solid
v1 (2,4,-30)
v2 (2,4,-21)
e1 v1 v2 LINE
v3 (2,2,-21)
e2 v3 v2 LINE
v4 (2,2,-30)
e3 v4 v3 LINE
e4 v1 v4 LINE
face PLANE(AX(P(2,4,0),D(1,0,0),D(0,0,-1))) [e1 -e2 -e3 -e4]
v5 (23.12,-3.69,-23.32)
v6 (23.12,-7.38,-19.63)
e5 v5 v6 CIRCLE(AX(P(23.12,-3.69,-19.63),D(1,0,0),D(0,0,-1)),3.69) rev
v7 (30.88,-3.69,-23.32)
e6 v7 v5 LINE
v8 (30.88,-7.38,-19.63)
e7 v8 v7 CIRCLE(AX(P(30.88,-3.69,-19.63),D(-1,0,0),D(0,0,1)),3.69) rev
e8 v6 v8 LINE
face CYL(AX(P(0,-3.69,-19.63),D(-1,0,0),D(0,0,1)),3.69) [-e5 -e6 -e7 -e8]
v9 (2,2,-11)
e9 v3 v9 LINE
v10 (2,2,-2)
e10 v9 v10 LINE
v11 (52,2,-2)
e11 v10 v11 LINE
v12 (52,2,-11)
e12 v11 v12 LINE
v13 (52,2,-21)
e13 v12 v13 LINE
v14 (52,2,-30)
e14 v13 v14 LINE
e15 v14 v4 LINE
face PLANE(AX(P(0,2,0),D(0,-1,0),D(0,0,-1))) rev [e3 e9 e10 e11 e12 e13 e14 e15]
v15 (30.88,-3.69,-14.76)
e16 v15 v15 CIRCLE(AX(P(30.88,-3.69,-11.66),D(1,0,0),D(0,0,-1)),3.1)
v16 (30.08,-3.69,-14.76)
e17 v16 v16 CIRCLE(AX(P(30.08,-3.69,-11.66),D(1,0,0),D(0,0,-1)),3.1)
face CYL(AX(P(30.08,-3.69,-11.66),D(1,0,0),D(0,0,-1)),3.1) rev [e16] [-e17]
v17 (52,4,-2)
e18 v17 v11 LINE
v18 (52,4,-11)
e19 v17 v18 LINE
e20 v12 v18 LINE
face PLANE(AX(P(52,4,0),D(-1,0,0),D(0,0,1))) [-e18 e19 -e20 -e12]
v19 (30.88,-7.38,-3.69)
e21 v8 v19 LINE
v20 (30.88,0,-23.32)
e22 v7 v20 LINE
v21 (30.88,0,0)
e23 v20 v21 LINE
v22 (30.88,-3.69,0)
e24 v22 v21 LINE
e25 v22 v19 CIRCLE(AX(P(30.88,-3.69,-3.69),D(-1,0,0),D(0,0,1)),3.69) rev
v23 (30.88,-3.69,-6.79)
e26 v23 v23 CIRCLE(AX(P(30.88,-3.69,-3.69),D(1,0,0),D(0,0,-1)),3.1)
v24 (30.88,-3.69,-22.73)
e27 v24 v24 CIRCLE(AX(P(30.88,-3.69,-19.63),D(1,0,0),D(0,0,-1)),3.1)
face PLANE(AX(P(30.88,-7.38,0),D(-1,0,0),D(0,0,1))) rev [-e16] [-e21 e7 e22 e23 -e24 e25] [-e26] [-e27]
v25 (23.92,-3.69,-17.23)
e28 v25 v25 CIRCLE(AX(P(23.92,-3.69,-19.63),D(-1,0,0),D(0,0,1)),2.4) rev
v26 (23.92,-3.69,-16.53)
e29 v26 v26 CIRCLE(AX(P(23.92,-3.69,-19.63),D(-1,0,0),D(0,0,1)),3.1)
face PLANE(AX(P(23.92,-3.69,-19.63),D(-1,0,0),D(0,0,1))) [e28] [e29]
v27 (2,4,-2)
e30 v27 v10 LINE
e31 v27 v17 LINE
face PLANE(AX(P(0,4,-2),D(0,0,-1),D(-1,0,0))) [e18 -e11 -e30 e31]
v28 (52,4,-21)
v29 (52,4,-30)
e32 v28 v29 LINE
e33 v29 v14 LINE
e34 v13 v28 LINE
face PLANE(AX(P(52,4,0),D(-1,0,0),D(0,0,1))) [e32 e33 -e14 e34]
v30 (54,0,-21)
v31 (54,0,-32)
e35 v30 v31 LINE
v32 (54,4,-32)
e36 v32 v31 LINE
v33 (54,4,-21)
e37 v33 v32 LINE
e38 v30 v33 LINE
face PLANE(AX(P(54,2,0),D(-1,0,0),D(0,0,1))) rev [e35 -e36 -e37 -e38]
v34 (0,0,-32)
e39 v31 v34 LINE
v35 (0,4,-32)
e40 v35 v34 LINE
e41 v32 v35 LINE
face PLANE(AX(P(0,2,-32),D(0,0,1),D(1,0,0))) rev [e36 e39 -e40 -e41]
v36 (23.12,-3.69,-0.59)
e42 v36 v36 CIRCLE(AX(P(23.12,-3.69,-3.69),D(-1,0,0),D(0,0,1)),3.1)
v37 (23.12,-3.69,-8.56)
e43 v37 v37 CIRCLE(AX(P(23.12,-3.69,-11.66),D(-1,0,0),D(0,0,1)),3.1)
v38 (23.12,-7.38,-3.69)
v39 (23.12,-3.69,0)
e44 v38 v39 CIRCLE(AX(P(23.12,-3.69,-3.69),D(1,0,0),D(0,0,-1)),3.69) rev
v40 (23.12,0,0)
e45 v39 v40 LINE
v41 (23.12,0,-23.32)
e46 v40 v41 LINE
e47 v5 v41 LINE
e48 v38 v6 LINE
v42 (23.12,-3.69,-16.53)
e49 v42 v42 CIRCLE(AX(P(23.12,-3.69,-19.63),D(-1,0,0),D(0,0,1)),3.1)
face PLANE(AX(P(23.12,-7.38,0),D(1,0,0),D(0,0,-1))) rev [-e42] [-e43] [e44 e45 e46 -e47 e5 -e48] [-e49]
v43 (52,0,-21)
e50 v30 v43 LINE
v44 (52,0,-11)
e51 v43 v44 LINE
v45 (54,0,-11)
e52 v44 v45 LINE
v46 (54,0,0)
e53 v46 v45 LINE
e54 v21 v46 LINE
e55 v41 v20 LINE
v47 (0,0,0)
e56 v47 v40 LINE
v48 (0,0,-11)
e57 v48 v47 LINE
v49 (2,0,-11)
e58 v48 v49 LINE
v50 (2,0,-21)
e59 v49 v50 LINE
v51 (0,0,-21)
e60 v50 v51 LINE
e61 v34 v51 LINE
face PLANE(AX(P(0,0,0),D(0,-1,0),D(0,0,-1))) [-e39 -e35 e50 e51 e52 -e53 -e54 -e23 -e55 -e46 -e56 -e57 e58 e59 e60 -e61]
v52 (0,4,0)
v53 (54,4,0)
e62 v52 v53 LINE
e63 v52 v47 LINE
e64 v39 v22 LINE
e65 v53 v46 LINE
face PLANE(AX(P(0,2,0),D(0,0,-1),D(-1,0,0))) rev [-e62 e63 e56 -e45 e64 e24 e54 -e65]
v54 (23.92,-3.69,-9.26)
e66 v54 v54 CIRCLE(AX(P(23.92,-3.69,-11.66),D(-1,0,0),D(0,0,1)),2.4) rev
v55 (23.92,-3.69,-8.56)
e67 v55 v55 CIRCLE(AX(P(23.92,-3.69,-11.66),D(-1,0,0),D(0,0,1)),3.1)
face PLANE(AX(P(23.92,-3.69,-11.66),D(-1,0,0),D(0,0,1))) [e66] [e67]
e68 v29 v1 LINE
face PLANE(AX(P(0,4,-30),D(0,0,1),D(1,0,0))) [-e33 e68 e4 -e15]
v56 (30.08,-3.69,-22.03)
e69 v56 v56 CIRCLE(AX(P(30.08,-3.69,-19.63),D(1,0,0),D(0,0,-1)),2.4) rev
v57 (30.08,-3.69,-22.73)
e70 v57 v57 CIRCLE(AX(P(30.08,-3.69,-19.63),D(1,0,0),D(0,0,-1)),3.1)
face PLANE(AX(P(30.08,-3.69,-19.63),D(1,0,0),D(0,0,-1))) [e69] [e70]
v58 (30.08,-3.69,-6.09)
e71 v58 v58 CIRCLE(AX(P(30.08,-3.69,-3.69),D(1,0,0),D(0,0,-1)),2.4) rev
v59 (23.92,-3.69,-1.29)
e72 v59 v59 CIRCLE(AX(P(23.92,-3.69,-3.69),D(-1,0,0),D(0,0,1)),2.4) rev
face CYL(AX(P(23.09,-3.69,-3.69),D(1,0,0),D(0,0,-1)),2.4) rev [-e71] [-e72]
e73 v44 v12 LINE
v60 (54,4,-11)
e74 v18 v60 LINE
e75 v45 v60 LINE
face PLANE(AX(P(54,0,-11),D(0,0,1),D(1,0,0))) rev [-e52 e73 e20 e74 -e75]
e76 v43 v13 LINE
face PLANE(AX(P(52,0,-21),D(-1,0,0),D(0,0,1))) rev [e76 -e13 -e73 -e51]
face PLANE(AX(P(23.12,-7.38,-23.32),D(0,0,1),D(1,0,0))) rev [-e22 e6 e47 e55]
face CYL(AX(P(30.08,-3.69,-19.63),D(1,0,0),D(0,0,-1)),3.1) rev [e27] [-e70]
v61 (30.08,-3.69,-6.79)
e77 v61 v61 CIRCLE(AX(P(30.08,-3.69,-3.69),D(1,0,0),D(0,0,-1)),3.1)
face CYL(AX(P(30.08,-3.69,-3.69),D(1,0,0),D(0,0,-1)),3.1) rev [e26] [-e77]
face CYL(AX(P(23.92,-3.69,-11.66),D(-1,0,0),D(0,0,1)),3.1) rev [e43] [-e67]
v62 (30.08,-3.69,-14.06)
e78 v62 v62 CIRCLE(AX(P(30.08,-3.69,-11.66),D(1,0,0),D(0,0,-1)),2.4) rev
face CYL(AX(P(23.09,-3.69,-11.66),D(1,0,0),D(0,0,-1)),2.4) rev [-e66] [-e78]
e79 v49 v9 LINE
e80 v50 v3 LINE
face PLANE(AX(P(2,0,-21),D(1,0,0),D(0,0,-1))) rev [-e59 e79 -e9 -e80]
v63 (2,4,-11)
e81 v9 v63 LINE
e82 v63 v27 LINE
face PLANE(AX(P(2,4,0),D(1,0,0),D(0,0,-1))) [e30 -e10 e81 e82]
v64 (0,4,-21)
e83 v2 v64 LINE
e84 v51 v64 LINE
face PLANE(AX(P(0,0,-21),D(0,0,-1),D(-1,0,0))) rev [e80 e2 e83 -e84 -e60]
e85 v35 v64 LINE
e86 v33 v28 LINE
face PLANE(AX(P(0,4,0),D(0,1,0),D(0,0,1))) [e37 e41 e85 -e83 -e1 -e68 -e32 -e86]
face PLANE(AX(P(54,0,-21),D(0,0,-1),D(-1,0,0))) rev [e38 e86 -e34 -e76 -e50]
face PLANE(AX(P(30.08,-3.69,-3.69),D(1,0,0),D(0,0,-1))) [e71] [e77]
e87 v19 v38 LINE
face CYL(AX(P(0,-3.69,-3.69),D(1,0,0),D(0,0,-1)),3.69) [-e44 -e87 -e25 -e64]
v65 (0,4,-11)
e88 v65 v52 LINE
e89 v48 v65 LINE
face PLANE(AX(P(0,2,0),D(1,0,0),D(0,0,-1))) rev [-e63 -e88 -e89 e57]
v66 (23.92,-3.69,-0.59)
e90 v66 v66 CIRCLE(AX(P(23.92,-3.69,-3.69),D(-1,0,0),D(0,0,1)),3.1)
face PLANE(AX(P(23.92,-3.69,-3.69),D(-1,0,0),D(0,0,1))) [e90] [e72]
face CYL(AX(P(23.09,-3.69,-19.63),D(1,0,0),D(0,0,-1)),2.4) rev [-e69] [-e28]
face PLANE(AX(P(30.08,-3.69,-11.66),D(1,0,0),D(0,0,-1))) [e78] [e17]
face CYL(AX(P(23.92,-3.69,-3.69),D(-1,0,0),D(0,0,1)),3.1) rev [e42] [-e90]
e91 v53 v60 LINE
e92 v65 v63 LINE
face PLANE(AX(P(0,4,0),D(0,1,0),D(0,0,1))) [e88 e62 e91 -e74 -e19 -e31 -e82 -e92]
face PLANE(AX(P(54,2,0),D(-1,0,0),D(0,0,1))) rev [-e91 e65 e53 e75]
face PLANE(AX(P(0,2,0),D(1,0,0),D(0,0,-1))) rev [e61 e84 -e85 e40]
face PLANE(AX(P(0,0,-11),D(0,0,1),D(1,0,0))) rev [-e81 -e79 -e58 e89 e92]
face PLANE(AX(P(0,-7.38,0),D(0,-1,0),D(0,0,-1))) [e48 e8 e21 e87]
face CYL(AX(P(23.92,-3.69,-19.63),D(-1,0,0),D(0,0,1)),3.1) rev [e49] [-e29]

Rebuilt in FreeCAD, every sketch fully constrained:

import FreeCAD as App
import Part
import Sketcher

V = App.Vector
Q = App.Units.Quantity


def edges_at(feature, points):
    """Names of the edges that pass closest to the given points."""
    edges = feature.Shape.Edges
    near = lambda p: min(range(len(edges)), key=lambda i: edges[i].distToShape(Part.Vertex(*p))[0])
    return sorted({f"Edge{near(p) + 1}" for p in points})

doc = App.newDocument("Part")
body = doc.addObject("PartDesign::Body", "Body")

# Sketch on XZ plane
sketch1 = body.newObject("Sketcher::SketchObject", "Sketch")
sketch1.AttachmentSupport = (doc.getObject("XZ_Plane"), [""])
sketch1.MapMode = "FlatFace"
sketch1.addGeometry(Part.LineSegment(V(0, -32, 0), V(0, 0, 0)), False)
sketch1.addGeometry(Part.LineSegment(V(0, 0, 0), V(54, 0, 0)), False)
sketch1.addGeometry(Part.LineSegment(V(54, 0, 0), V(54, -32, 0)), False)
sketch1.addGeometry(Part.LineSegment(V(54, -32, 0), V(0, -32, 0)), False)
sketch1.addConstraint(Sketcher.Constraint("Coincident", 0, 2, 1, 1))
sketch1.addConstraint(Sketcher.Constraint("Coincident", 1, 2, 2, 1))
sketch1.addConstraint(Sketcher.Constraint("Coincident", 2, 2, 3, 1))
sketch1.addConstraint(Sketcher.Constraint("Coincident", 3, 2, 0, 1))
sketch1.addConstraint(Sketcher.Constraint("Vertical", 0))
sketch1.addConstraint(Sketcher.Constraint("Horizontal", 1))
sketch1.addConstraint(Sketcher.Constraint("Vertical", 2))
sketch1.addConstraint(Sketcher.Constraint("Horizontal", 3))
sketch1.addConstraint(Sketcher.Constraint("Coincident", 0, 2, -1, 1))
sketch1.addConstraint(Sketcher.Constraint("DistanceX", 1, 1, 1, 2, Q("54 mm")))
sketch1.addConstraint(Sketcher.Constraint("DistanceY", 0, 1, 0, 2, Q("32 mm")))
pad1 = body.newObject("PartDesign::Pad", "Pad")
pad1.Profile = sketch1
pad1.Length = 2
pad1.Reversed = True

# Sketch on XZ plane
sketch2 = body.newObject("Sketcher::SketchObject", "Sketch001")
sketch2.AttachmentSupport = (doc.getObject("XZ_Plane"), [""])
sketch2.MapMode = "FlatFace"
sketch2.AttachmentOffset = App.Placement(V(0, 0, -2), App.Rotation())
sketch2.addGeometry(Part.LineSegment(V(0, -32, 0), V(0, 0, 0)), False)
sketch2.addGeometry(Part.LineSegment(V(0, 0, 0), V(54, 0, 0)), False)
sketch2.addGeometry(Part.LineSegment(V(54, 0, 0), V(54, -32, 0)), False)
sketch2.addGeometry(Part.LineSegment(V(54, -32, 0), V(0, -32, 0)), False)
sketch2.addGeometry(Part.LineSegment(V(52, -2, 0), V(2, -2, 0)), False)
sketch2.addGeometry(Part.LineSegment(V(2, -2, 0), V(2, -30, 0)), False)
sketch2.addGeometry(Part.LineSegment(V(2, -30, 0), V(52, -30, 0)), False)
sketch2.addGeometry(Part.LineSegment(V(52, -30, 0), V(52, -2, 0)), False)
sketch2.addConstraint(Sketcher.Constraint("Coincident", 0, 2, 1, 1))
sketch2.addConstraint(Sketcher.Constraint("Coincident", 1, 2, 2, 1))
sketch2.addConstraint(Sketcher.Constraint("Coincident", 2, 2, 3, 1))
sketch2.addConstraint(Sketcher.Constraint("Coincident", 3, 2, 0, 1))
sketch2.addConstraint(Sketcher.Constraint("Coincident", 4, 2, 5, 1))
sketch2.addConstraint(Sketcher.Constraint("Coincident", 5, 2, 6, 1))
sketch2.addConstraint(Sketcher.Constraint("Coincident", 6, 2, 7, 1))
sketch2.addConstraint(Sketcher.Constraint("Coincident", 7, 2, 4, 1))
sketch2.addConstraint(Sketcher.Constraint("Vertical", 0))
sketch2.addConstraint(Sketcher.Constraint("Horizontal", 1))
sketch2.addConstraint(Sketcher.Constraint("Vertical", 2))
sketch2.addConstraint(Sketcher.Constraint("Horizontal", 3))
sketch2.addConstraint(Sketcher.Constraint("Horizontal", 4))
sketch2.addConstraint(Sketcher.Constraint("Vertical", 5))
sketch2.addConstraint(Sketcher.Constraint("Horizontal", 6))
sketch2.addConstraint(Sketcher.Constraint("Vertical", 7))
sketch2.addConstraint(Sketcher.Constraint("Coincident", 0, 2, -1, 1))
sketch2.addConstraint(Sketcher.Constraint("DistanceX", 1, 1, 1, 2, Q("54 mm")))
sketch2.addConstraint(Sketcher.Constraint("DistanceX", 4, 2, 4, 1, Q("50 mm")))
sketch2.addConstraint(Sketcher.Constraint("DistanceY", 0, 1, 0, 2, Q("32 mm")))
sketch2.addConstraint(Sketcher.Constraint("DistanceY", 5, 2, 5, 1, Q("28 mm")))
sketch2.addConstraint(Sketcher.Constraint("DistanceX", -1, 1, 4, 2, Q("2 mm")))
sketch2.addConstraint(Sketcher.Constraint("DistanceY", 4, 2, -1, 1, Q("2 mm")))
pad2 = body.newObject("PartDesign::Pad", "Pad001")
pad2.Profile = sketch2
pad2.Length = 2
pad2.Reversed = True

# Sketch on XZ plane
sketch3 = body.newObject("Sketcher::SketchObject", "Sketch002")
sketch3.AttachmentSupport = (doc.getObject("XZ_Plane"), [""])
sketch3.MapMode = "FlatFace"
sketch3.AttachmentOffset = App.Placement(V(0, 0, -4), App.Rotation())
sketch3.addGeometry(Part.LineSegment(V(0, -21, 0), V(0, -11, 0)), False)
sketch3.addGeometry(Part.LineSegment(V(0, -11, 0), V(2, -11, 0)), False)
sketch3.addGeometry(Part.LineSegment(V(2, -11, 0), V(2, -21, 0)), False)
sketch3.addGeometry(Part.LineSegment(V(2, -21, 0), V(0, -21, 0)), False)
sketch3.addGeometry(Part.LineSegment(V(52, -21, 0), V(52, -11, 0)), False)
sketch3.addGeometry(Part.LineSegment(V(52, -11, 0), V(54, -11, 0)), False)
sketch3.addGeometry(Part.LineSegment(V(54, -11, 0), V(54, -21, 0)), False)
sketch3.addGeometry(Part.LineSegment(V(54, -21, 0), V(52, -21, 0)), False)
sketch3.addConstraint(Sketcher.Constraint("Coincident", 0, 2, 1, 1))
sketch3.addConstraint(Sketcher.Constraint("Coincident", 1, 2, 2, 1))
sketch3.addConstraint(Sketcher.Constraint("Coincident", 2, 2, 3, 1))
sketch3.addConstraint(Sketcher.Constraint("Coincident", 3, 2, 0, 1))
sketch3.addConstraint(Sketcher.Constraint("Coincident", 4, 2, 5, 1))
sketch3.addConstraint(Sketcher.Constraint("Coincident", 5, 2, 6, 1))
sketch3.addConstraint(Sketcher.Constraint("Coincident", 6, 2, 7, 1))
sketch3.addConstraint(Sketcher.Constraint("Coincident", 7, 2, 4, 1))
sketch3.addConstraint(Sketcher.Constraint("Vertical", 0))
sketch3.addConstraint(Sketcher.Constraint("Horizontal", 1))
sketch3.addConstraint(Sketcher.Constraint("Vertical", 2))
sketch3.addConstraint(Sketcher.Constraint("Horizontal", 3))
sketch3.addConstraint(Sketcher.Constraint("Vertical", 4))
sketch3.addConstraint(Sketcher.Constraint("Horizontal", 5))
sketch3.addConstraint(Sketcher.Constraint("Vertical", 6))
sketch3.addConstraint(Sketcher.Constraint("Horizontal", 7))
sketch3.addConstraint(Sketcher.Constraint("PointOnObject", 0, 2, -2))
sketch3.addConstraint(Sketcher.Constraint("Horizontal", 1, 2, 4, 2))
sketch3.addConstraint(Sketcher.Constraint("Horizontal", 3, 2, 6, 2))
sketch3.addConstraint(Sketcher.Constraint("Equal", 3, 5))
sketch3.addConstraint(Sketcher.Constraint("DistanceX", 1, 1, 1, 2, Q("2 mm")))
sketch3.addConstraint(Sketcher.Constraint("DistanceY", 0, 1, 0, 2, Q("10 mm")))
sketch3.addConstraint(Sketcher.Constraint("DistanceY", 0, 2, -1, 1, Q("11 mm")))
sketch3.addConstraint(Sketcher.Constraint("DistanceX", -1, 1, 4, 2, Q("52 mm")))
pocket1 = body.newObject("PartDesign::Pocket", "Pocket")
pocket1.Profile = sketch3
pocket1.Length = 4
pocket1.Reversed = True

# Sketch on XZ plane
sketch4 = body.newObject("Sketcher::SketchObject", "Sketch003")
sketch4.AttachmentSupport = (doc.getObject("XZ_Plane"), [""])
sketch4.MapMode = "FlatFace"
sketch4.addGeometry(Part.LineSegment(V(23.12, 0, 0), V(23.12, -23.32, 0)), False)
sketch4.addGeometry(Part.LineSegment(V(23.12, -23.32, 0), V(30.88, -23.32, 0)), False)
sketch4.addGeometry(Part.LineSegment(V(30.88, -23.32, 0), V(30.88, 0, 0)), False)
sketch4.addGeometry(Part.LineSegment(V(30.88, 0, 0), V(23.12, 0, 0)), False)
sketch4.addConstraint(Sketcher.Constraint("Coincident", 0, 2, 1, 1))
sketch4.addConstraint(Sketcher.Constraint("Coincident", 1, 2, 2, 1))
sketch4.addConstraint(Sketcher.Constraint("Coincident", 2, 2, 3, 1))
sketch4.addConstraint(Sketcher.Constraint("Coincident", 3, 2, 0, 1))
sketch4.addConstraint(Sketcher.Constraint("Vertical", 0))
sketch4.addConstraint(Sketcher.Constraint("Horizontal", 1))
sketch4.addConstraint(Sketcher.Constraint("Vertical", 2))
sketch4.addConstraint(Sketcher.Constraint("Horizontal", 3))
sketch4.addConstraint(Sketcher.Constraint("PointOnObject", 2, 2, -1))
sketch4.addConstraint(Sketcher.Constraint("DistanceX", 1, 1, 1, 2, Q("7.76 mm")))
sketch4.addConstraint(Sketcher.Constraint("DistanceY", 0, 2, 0, 1, Q("23.32 mm")))
sketch4.addConstraint(Sketcher.Constraint("DistanceX", -1, 1, 0, 2, Q("23.12 mm")))
pad3 = body.newObject("PartDesign::Pad", "Pad002")
pad3.Profile = sketch4
pad3.Length = 7.38

# Sketch on YZ plane
sketch5 = body.newObject("Sketcher::SketchObject", "Sketch004")
sketch5.AttachmentSupport = (doc.getObject("YZ_Plane"), [""])
sketch5.MapMode = "FlatFace"
sketch5.AttachmentOffset = App.Placement(V(0, 0, 30.88), App.Rotation())
sketch5.addGeometry(Part.Circle(V(-3.69, -3.69, 0), V(0, 0, 1), 2.4), False)
sketch5.addGeometry(Part.Circle(V(-3.69, -11.66, 0), V(0, 0, 1), 2.4), False)
sketch5.addGeometry(Part.Circle(V(-3.69, -19.63, 0), V(0, 0, 1), 2.4), False)
sketch5.addConstraint(Sketcher.Constraint("Equal", 0, 1))
sketch5.addConstraint(Sketcher.Constraint("Equal", 1, 2))
sketch5.addConstraint(Sketcher.Constraint("Vertical", 0, 3, 1, 3))
sketch5.addConstraint(Sketcher.Constraint("Vertical", 1, 3, 2, 3))
sketch5.addConstraint(Sketcher.Constraint("Diameter", 0, Q("4.8 mm")))
sketch5.addConstraint(Sketcher.Constraint("DistanceX", 0, 3, -1, 1, Q("3.69 mm")))
sketch5.addConstraint(Sketcher.Constraint("DistanceY", 0, 3, -1, 1, Q("3.69 mm")))
sketch5.addConstraint(Sketcher.Constraint("DistanceY", 1, 3, -1, 1, Q("11.66 mm")))
sketch5.addConstraint(Sketcher.Constraint("DistanceY", 2, 3, -1, 1, Q("19.63 mm")))
pocket2 = body.newObject("PartDesign::Pocket", "Pocket001")
pocket2.Profile = sketch5
pocket2.Length = 7.79

# Sketch on YZ plane
sketch6 = body.newObject("Sketcher::SketchObject", "Sketch005")
sketch6.AttachmentSupport = (doc.getObject("YZ_Plane"), [""])
sketch6.MapMode = "FlatFace"
sketch6.AttachmentOffset = App.Placement(V(0, 0, 23.12), App.Rotation())
sketch6.addGeometry(Part.Circle(V(-3.69, -11.66, 0), V(0, 0, 1), 3.1), False)
sketch6.addGeometry(Part.Circle(V(-3.69, -3.69, 0), V(0, 0, 1), 3.1), False)
sketch6.addGeometry(Part.Circle(V(-3.69, -19.63, 0), V(0, 0, 1), 3.1), False)
sketch6.addConstraint(Sketcher.Constraint("Equal", 0, 1))
sketch6.addConstraint(Sketcher.Constraint("Equal", 1, 2))
sketch6.addConstraint(Sketcher.Constraint("Vertical", 0, 3, 1, 3))
sketch6.addConstraint(Sketcher.Constraint("Vertical", 1, 3, 2, 3))
sketch6.addConstraint(Sketcher.Constraint("Diameter", 0, Q("6.2 mm")))
sketch6.addConstraint(Sketcher.Constraint("DistanceX", 0, 3, -1, 1, Q("3.69 mm")))
sketch6.addConstraint(Sketcher.Constraint("DistanceY", 0, 3, -1, 1, Q("11.66 mm")))
sketch6.addConstraint(Sketcher.Constraint("DistanceY", 1, 3, -1, 1, Q("3.69 mm")))
sketch6.addConstraint(Sketcher.Constraint("DistanceY", 2, 3, -1, 1, Q("19.63 mm")))
pocket3 = body.newObject("PartDesign::Pocket", "Pocket002")
pocket3.Profile = sketch6
pocket3.Length = 0.8
pocket3.Reversed = True

# Sketch on YZ plane
sketch7 = body.newObject("Sketcher::SketchObject", "Sketch006")
sketch7.AttachmentSupport = (doc.getObject("YZ_Plane"), [""])
sketch7.MapMode = "FlatFace"
sketch7.AttachmentOffset = App.Placement(V(0, 0, 30.08), App.Rotation())
sketch7.addGeometry(Part.Circle(V(-3.69, -3.69, 0), V(0, 0, 1), 3.1), False)
sketch7.addGeometry(Part.Circle(V(-3.69, -11.66, 0), V(0, 0, 1), 3.1), False)
sketch7.addGeometry(Part.Circle(V(-3.69, -19.63, 0), V(0, 0, 1), 3.1), False)
sketch7.addConstraint(Sketcher.Constraint("Equal", 0, 1))
sketch7.addConstraint(Sketcher.Constraint("Equal", 1, 2))
sketch7.addConstraint(Sketcher.Constraint("Vertical", 0, 3, 1, 3))
sketch7.addConstraint(Sketcher.Constraint("Vertical", 1, 3, 2, 3))
sketch7.addConstraint(Sketcher.Constraint("Diameter", 0, Q("6.2 mm")))
sketch7.addConstraint(Sketcher.Constraint("DistanceX", 0, 3, -1, 1, Q("3.69 mm")))
sketch7.addConstraint(Sketcher.Constraint("DistanceY", 0, 3, -1, 1, Q("3.69 mm")))
sketch7.addConstraint(Sketcher.Constraint("DistanceY", 1, 3, -1, 1, Q("11.66 mm")))
sketch7.addConstraint(Sketcher.Constraint("DistanceY", 2, 3, -1, 1, Q("19.63 mm")))
pocket4 = body.newObject("PartDesign::Pocket", "Pocket003")
pocket4.Profile = sketch7
pocket4.Length = 0.8
pocket4.Reversed = True
doc.recompute()

fillet = body.newObject("PartDesign::Fillet", "Fillet")
fillet.Base = (pocket4, edges_at(pocket4, [(27, -7.38, -23.32), (27, -7.38, 0)]))
fillet.Radius = 3.69

doc.recompute()
